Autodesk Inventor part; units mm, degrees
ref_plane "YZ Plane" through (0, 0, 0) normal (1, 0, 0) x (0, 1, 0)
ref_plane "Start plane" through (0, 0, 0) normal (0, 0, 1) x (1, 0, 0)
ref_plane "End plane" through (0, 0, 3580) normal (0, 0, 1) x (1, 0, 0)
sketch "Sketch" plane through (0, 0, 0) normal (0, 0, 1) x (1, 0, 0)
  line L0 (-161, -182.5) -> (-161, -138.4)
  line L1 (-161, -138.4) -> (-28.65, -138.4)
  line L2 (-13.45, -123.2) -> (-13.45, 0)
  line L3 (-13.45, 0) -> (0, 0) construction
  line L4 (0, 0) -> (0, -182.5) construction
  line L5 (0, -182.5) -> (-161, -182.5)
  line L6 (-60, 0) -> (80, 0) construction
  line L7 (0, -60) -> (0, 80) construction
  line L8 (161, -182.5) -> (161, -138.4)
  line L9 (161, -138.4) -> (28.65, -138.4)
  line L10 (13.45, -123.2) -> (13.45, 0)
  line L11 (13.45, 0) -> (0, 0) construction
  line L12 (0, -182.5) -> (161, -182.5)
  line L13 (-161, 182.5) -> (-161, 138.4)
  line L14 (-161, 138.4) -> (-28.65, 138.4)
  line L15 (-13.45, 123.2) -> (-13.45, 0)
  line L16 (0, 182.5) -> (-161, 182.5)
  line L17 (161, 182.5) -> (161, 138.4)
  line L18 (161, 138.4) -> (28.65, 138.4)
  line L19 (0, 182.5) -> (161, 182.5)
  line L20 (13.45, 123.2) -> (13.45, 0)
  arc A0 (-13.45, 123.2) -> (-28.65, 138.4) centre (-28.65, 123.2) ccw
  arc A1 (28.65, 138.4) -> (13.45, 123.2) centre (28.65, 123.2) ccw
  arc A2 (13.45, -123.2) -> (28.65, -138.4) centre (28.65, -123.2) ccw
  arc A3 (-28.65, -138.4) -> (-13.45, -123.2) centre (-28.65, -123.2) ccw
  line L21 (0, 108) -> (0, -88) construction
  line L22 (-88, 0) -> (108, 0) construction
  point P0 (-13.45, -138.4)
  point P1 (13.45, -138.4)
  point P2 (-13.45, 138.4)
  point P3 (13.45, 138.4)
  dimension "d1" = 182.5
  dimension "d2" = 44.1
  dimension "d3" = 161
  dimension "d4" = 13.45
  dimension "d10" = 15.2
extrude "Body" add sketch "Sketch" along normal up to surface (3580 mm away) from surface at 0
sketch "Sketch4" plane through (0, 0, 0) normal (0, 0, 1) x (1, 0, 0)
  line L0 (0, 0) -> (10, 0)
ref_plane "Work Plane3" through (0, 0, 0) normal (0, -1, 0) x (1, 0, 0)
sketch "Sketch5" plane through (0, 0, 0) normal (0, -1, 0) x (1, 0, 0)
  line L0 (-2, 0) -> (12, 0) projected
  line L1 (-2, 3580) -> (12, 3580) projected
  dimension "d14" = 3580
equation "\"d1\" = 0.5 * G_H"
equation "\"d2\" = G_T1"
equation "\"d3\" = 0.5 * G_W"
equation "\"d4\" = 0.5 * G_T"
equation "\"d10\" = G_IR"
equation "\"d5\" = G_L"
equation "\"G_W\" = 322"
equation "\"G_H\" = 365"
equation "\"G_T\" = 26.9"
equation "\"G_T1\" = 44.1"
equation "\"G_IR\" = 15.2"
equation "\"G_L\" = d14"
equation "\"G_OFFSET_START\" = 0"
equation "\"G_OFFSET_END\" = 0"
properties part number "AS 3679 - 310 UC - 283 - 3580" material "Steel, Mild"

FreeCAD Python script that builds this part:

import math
import FreeCAD as App
import Part
import Sketcher
from FreeCAD import Vector

doc = App.newDocument("Part")
body = doc.addObject("PartDesign::Body", "Body")

# Sketch on XY plane
sketch1 = doc.addObject("Sketcher::SketchObject", "Sketch")
body.addObject(sketch1)
sketch1.AttachmentSupport = (doc.XY_Plane, [""])
sketch1.MapMode = "FlatFace"
sketch1.addGeometry([
    Part.LineSegment(Vector(-161, -138.4, 0), Vector(-161, -182.5, 0)),  # 0
    Part.LineSegment(Vector(-161, -182.5, 0), Vector(161, -182.5, 0)),  # 1
    Part.LineSegment(Vector(161, -182.5, 0), Vector(161, -138.4, 0)),  # 2
    Part.LineSegment(Vector(161, -138.4, 0), Vector(28.65, -138.4, 0)),  # 3
    Part.ArcOfCircle(Part.Circle(Vector(28.65, -123.2, 0), Vector(0, 0, 1), 15.2), math.radians(180), math.radians(270)),  # 4
    Part.LineSegment(Vector(13.45, -123.2, 0), Vector(13.45, 123.2, 0)),  # 5
    Part.ArcOfCircle(Part.Circle(Vector(28.65, 123.2, 0), Vector(0, 0, 1), 15.2), math.radians(90), math.radians(180)),  # 6
    Part.LineSegment(Vector(28.65, 138.4, 0), Vector(161, 138.4, 0)),  # 7
    Part.LineSegment(Vector(161, 138.4, 0), Vector(161, 182.5, 0)),  # 8
    Part.LineSegment(Vector(161, 182.5, 0), Vector(-161, 182.5, 0)),  # 9
    Part.LineSegment(Vector(-161, 182.5, 0), Vector(-161, 138.4, 0)),  # 10
    Part.LineSegment(Vector(-161, 138.4, 0), Vector(-28.65, 138.4, 0)),  # 11
    Part.ArcOfCircle(Part.Circle(Vector(-28.65, 123.2, 0), Vector(0, 0, 1), 15.2), math.radians(0), math.radians(90)),  # 12
    Part.LineSegment(Vector(-13.45, 123.2, 0), Vector(-13.45, -123.2, 0)),  # 13
    Part.ArcOfCircle(Part.Circle(Vector(-28.65, -123.2, 0), Vector(0, 0, 1), 15.2), math.radians(-90), math.radians(0)),  # 14
    Part.LineSegment(Vector(-28.65, -138.4, 0), Vector(-161, -138.4, 0)),  # 15
], False)
sketch1.addConstraint([
    Sketcher.Constraint("Coincident", 0, 2, 1, 1),
    Sketcher.Constraint("Coincident", 1, 2, 2, 1),
    Sketcher.Constraint("Coincident", 2, 2, 3, 1),
    Sketcher.Constraint("Tangent", 3, 2, 4, 2),
    Sketcher.Constraint("Tangent", 4, 1, 5, 1),
    Sketcher.Constraint("Tangent", 5, 2, 6, 2),
    Sketcher.Constraint("Tangent", 6, 1, 7, 1),
    Sketcher.Constraint("Coincident", 7, 2, 8, 1),
    Sketcher.Constraint("Coincident", 8, 2, 9, 1),
    Sketcher.Constraint("Coincident", 9, 2, 10, 1),
    Sketcher.Constraint("Coincident", 10, 2, 11, 1),
    Sketcher.Constraint("Tangent", 11, 2, 12, 2),
    Sketcher.Constraint("Tangent", 12, 1, 13, 1),
    Sketcher.Constraint("Tangent", 13, 2, 14, 2),
    Sketcher.Constraint("Tangent", 14, 1, 15, 1),
    Sketcher.Constraint("Coincident", 15, 2, 0, 1),
    Sketcher.Constraint("Vertical", 0),
    Sketcher.Constraint("Horizontal", 1),
    Sketcher.Constraint("Vertical", 2),
    Sketcher.Constraint("Horizontal", 3),
    Sketcher.Constraint("Vertical", 5),
    Sketcher.Constraint("Horizontal", 7),
    Sketcher.Constraint("Vertical", 8),
    Sketcher.Constraint("Horizontal", 9),
    Sketcher.Constraint("Vertical", 10),
    Sketcher.Constraint("Horizontal", 11),
    Sketcher.Constraint("Vertical", 13),
    Sketcher.Constraint("Horizontal", 15),
    Sketcher.Constraint("Equal", 4, 6),
    Sketcher.Constraint("Equal", 6, 12),
    Sketcher.Constraint("Equal", 12, 14),
    Sketcher.Constraint("Symmetric", 4, 3, 12, 3, -1, 1),
    Sketcher.Constraint("Symmetric", 0, 2, 8, 2, -1, 1),
    Sketcher.Constraint("Symmetric", 7, 2, 10, 2, -2),
    Sketcher.Constraint("Symmetric", 2, 2, 15, 2, -2),
    Sketcher.Constraint("Radius", 4, 15.2),
    Sketcher.Constraint("DistanceY", 0, 2, 0, 1, 44.1),
    Sketcher.Constraint("DistanceX", 0, 2, -1, 1, 161.0),
    Sketcher.Constraint("DistanceY", 0, 2, -1, 1, 182.5),
    Sketcher.Constraint("DistanceX", -1, 1, 4, 1, 13.45),
])
pad1 = doc.addObject("PartDesign::Pad", "Pad")
body.addObject(pad1)
pad1.Profile = sketch1
pad1.Length = 3580

doc.recompute()
